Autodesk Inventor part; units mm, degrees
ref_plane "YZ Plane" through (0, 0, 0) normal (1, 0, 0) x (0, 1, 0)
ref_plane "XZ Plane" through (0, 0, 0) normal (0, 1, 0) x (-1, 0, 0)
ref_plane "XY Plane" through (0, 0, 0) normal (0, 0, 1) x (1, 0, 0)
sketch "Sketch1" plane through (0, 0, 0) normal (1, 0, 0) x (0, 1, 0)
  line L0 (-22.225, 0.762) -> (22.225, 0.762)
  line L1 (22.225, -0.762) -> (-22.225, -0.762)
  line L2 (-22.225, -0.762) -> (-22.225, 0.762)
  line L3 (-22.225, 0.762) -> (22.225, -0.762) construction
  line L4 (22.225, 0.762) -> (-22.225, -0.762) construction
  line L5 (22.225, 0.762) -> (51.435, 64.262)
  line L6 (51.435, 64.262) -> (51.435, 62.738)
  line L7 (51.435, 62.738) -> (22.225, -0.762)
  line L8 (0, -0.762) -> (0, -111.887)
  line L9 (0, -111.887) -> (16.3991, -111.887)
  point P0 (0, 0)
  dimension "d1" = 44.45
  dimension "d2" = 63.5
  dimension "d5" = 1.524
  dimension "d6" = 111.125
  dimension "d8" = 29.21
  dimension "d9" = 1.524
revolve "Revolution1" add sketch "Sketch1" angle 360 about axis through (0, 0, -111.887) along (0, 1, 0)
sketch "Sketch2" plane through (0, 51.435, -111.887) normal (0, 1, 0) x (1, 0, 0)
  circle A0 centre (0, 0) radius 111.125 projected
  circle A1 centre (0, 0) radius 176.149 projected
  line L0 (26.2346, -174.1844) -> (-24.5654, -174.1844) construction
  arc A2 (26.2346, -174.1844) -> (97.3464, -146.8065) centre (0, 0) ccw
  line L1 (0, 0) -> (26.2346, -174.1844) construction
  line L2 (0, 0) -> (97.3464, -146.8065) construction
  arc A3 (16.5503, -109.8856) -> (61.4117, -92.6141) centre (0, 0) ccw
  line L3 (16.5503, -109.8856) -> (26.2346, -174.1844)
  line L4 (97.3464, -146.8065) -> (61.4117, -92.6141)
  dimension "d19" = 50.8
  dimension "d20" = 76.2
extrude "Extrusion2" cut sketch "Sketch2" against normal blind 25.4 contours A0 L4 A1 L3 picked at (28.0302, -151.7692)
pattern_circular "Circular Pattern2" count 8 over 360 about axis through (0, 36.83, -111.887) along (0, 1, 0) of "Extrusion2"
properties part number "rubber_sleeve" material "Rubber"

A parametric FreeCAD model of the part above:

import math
import FreeCAD as App
import Part
import Sketcher
Q = App.Units.Quantity


def add_polygon(sketch, points):
    """Adds a closed chain of lines whose ends are joined by coincident constraints."""
    first, n = sketch.GeometryCount, len(points)
    for a, b in zip(points, points[1:] + points[:1]):
        sketch.addGeometry(Part.LineSegment(App.Vector(*a, 0), App.Vector(*b, 0)), False)
    for i in range(n):
        sketch.addConstraint(Sketcher.Constraint("Coincident", first + i, 2, first + (i + 1) % n, 1))

doc = App.newDocument("Part")
body = doc.addObject("PartDesign::Body", "Body")

# Sketch on YZ plane
sketch1 = body.newObject("Sketcher::SketchObject", "Sketch")
sketch1.AttachmentSupport = (doc.getObject("YZ_Plane"), [""])
sketch1.MapMode = "FlatFace"
add_polygon(sketch1, [(22.2, 0.8), (-22.2, 0.8), (-22.2, -0.8), (22.2, -0.8), (51.4, 62.7), (51.4, 64.3)])  # lines 0-5
sketch1.addGeometry(Part.LineSegment(App.Vector(-22.2, -111.9, 0), App.Vector(51.4, -111.9, 0)), True)  # axis
sketch1.addConstraint(Sketcher.Constraint("Horizontal", 0))
sketch1.addConstraint(Sketcher.Constraint("Vertical", 1))
sketch1.addConstraint(Sketcher.Constraint("Horizontal", 2))
sketch1.addConstraint(Sketcher.Constraint("Vertical", 4))
sketch1.addConstraint(Sketcher.Constraint("Horizontal", 6))
sketch1.addConstraint(Sketcher.Constraint("Symmetric", 0, 2, 2, 2, -1, 1))
sketch1.addConstraint(Sketcher.Constraint("Parallel", 3, 5))
sketch1.addConstraint(Sketcher.Constraint("Vertical", 2, 2, 5, 2))
sketch1.addConstraint(Sketcher.Constraint("Vertical", 1, 2, 6, 1))
sketch1.addConstraint(Sketcher.Constraint("Vertical", 4, 2, 6, 2))
sketch1.addConstraint(Sketcher.Constraint("DistanceX", 0, 2, 0, 1, Q("1.75 in")))
sketch1.addConstraint(Sketcher.Constraint("DistanceY", 1, 2, 1, 1, Q("0.06 in")))
sketch1.addConstraint(Sketcher.Constraint("DistanceY", 2, 2, 3, 2, Q("2.5 in")))
sketch1.addConstraint(Sketcher.Constraint("DistanceX", 2, 2, 3, 2, Q("1.15 in")))
sketch1.addConstraint(Sketcher.Constraint("DistanceY", 6, 1, 1, 2, Q("4.375 in")))
revolution = body.newObject("PartDesign::Revolution", "Revolution")
revolution.Profile = sketch1
revolution.ReferenceAxis = (sketch1, ["Axis0"])
revolution.Angle = 360

# Sketch on XZ plane
sketch2 = body.newObject("Sketcher::SketchObject", "Sketch001")
sketch2.AttachmentSupport = (doc.getObject("XZ_Plane"), [""])
sketch2.MapMode = "FlatFace"
sketch2.AttachmentOffset = App.Placement(App.Vector(0, 0, -2.025 * 25.4), App.Rotation())
sketch2.addGeometry(Part.ArcOfCircle(Part.Circle(App.Vector(0, -112, 0), App.Vector(0, 0, 1), 111), math.radians(56), math.radians(81)), False)
sketch2.addGeometry(Part.LineSegment(App.Vector(17, -2, 0), App.Vector(26, 62, 0)), False)
sketch2.addGeometry(Part.ArcOfCircle(Part.Circle(App.Vector(0, -112, 0), App.Vector(0, 0, 1), 176), math.radians(56), math.radians(81)), False)
sketch2.addGeometry(Part.LineSegment(App.Vector(97, 35, 0), App.Vector(61, -19, 0)), False)
sketch2.addConstraint(Sketcher.Constraint("Coincident", 0, 2, 1, 1))
sketch2.addConstraint(Sketcher.Constraint("Coincident", 1, 2, 2, 2))
sketch2.addConstraint(Sketcher.Constraint("Coincident", 2, 1, 3, 1))
sketch2.addConstraint(Sketcher.Constraint("Coincident", 3, 2, 0, 1))
sketch2.addConstraint(Sketcher.Constraint("Coincident", 2, 3, 0, 3))
sketch2.addConstraint(Sketcher.Constraint("PointOnObject", 0, 3, -2))
sketch2.addConstraint(Sketcher.Constraint("Radius", 0, Q("4.375 in")))
sketch2.addConstraint(Sketcher.Constraint("Radius", 2, Q("6.935 in")))
sketch2.addConstraint(Sketcher.Constraint("DistanceY", 0, 3, -1, 1, Q("4.405 in")))
sketch2.addConstraint(Sketcher.Constraint("DistanceY", 0, 2, -1, 1, Q("0.0788 in")))
sketch2.addConstraint(Sketcher.Constraint("DistanceX", 0, 2, 3, 2, Q("1.7662 in")))
sketch2.addConstraint(Sketcher.Constraint("DistanceX", -1, 1, 1, 2, Q("26.2346 mm")))
sketch2.addConstraint(Sketcher.Constraint("DistanceX", -1, 1, 2, 1, Q("97.3464 mm")))
pocket1 = body.newObject("PartDesign::Pocket", "Pocket")
pocket1.Profile = sketch2
pocket1.Length = Q("1 in")
pocket1.Reversed = True
doc.recompute()

datumline = body.newObject("PartDesign::Line", "DatumLine")
datumline.Placement = App.Placement(App.Vector(0, 0, -111.887), App.Rotation(App.Vector(0, 0, 1), App.Vector(0, 1, 0)))
polarpattern = body.newObject("PartDesign::PolarPattern", "PolarPattern")
polarpattern.Originals = [pocket1]
polarpattern.Axis = (datumline, [""])
polarpattern.Angle = 360
polarpattern.Occurrences = 8
body.Tip = polarpattern

doc.recompute()
